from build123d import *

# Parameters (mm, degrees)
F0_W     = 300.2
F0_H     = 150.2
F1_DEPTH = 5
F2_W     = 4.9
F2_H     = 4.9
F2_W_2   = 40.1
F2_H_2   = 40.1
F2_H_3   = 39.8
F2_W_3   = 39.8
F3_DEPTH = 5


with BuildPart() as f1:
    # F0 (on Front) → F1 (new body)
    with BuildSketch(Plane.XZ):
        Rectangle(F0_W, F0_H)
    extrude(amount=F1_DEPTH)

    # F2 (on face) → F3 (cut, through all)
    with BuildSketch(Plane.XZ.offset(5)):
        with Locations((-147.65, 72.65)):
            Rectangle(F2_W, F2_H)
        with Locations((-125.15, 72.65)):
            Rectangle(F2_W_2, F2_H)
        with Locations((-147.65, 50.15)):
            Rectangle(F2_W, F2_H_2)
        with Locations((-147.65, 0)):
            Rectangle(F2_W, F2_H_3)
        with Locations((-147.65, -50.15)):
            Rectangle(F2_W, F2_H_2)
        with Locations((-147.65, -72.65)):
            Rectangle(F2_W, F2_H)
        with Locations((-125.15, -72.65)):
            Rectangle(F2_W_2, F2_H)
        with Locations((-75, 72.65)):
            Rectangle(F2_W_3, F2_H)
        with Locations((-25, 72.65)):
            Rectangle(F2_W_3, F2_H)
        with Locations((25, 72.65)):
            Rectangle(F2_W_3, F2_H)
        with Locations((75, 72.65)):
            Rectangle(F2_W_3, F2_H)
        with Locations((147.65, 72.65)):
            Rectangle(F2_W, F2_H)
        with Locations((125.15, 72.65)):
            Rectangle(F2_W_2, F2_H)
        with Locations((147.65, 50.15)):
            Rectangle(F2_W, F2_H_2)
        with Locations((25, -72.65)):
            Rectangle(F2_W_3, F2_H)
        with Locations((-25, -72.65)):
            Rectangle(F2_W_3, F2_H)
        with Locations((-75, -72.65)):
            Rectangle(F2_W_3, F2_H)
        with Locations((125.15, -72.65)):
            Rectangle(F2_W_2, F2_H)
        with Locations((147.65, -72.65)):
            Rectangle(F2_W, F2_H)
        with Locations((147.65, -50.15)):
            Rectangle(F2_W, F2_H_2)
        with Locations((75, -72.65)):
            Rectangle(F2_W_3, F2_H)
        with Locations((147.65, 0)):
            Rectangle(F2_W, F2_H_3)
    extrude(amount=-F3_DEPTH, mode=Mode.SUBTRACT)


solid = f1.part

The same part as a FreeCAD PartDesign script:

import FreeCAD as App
import Part
import Sketcher

V = App.Vector


def add_polygon(sketch, points):
    """Adds a closed chain of lines whose ends are joined by coincident constraints."""
    first, n = sketch.GeometryCount, len(points)
    for a, b in zip(points, points[1:] + points[:1]):
        sketch.addGeometry(Part.LineSegment(App.Vector(*a, 0), App.Vector(*b, 0)), False)
    for i in range(n):
        sketch.addConstraint(Sketcher.Constraint("Coincident", first + i, 2, first + (i + 1) % n, 1))

doc = App.newDocument("Part")
body = doc.addObject("PartDesign::Body", "Body")

# Sketch on XZ plane
sketch1 = body.newObject("Sketcher::SketchObject", "Sketch")
sketch1.AttachmentSupport = (doc.getObject("XZ_Plane"), [""])
sketch1.MapMode = "FlatFace"
add_polygon(sketch1, [(-150.1, 75.1), (-150.1, -75.1), (150.1, -75.1), (150.1, 75.1)])  # lines 0-3
sketch1.addConstraint([
    Sketcher.Constraint("Vertical", 0),
    Sketcher.Constraint("Horizontal", 1),
    Sketcher.Constraint("Vertical", 2),
    Sketcher.Constraint("Horizontal", 3),
    Sketcher.Constraint("Symmetric", 0, 2, 2, 2, -1, 1),
    Sketcher.Constraint("DistanceX", 1, 1, 1, 2, 300.2),
    Sketcher.Constraint("DistanceY", 0, 2, 0, 1, 150.2),
])
pad1 = body.newObject("PartDesign::Pad", "Pad")
pad1.Profile = sketch1
pad1.Length = 5

# Sketch on XZ plane
sketch2 = body.newObject("Sketcher::SketchObject", "Sketch001")
sketch2.AttachmentSupport = (doc.getObject("XZ_Plane"), [""])
sketch2.MapMode = "FlatFace"
sketch2.AttachmentOffset = App.Placement(V(0, 0, 5), App.Rotation())
add_polygon(sketch2, [(-150.1, 75.1), (-150.1, 30.1), (-145.2, 30.1), (-145.2, 70.2), (-105.1, 70.2), (-105.1, 75.1)])  # lines 0-5
add_polygon(sketch2, [(-150.1, 19.9), (-150.1, -19.9), (-145.2, -19.9), (-145.2, 19.9)])  # lines 6-9
add_polygon(sketch2, [(-150.1, -30.1), (-150.1, -75.1), (-105.1, -75.1), (-105.1, -70.2), (-145.2, -70.2), (-145.2, -30.1)])  # lines 10-15
add_polygon(sketch2, [(-94.9, 75.1), (-94.9, 70.2), (-55.1, 70.2), (-55.1, 75.1)])  # lines 16-19
add_polygon(sketch2, [(-44.9, 75.1), (-44.9, 70.2), (-5.1, 70.2), (-5.1, 75.1)])  # lines 20-23
add_polygon(sketch2, [(5.1, 75.1), (5.1, 70.2), (44.9, 70.2), (44.9, 75.1)])  # lines 24-27
add_polygon(sketch2, [(55.1, 75.1), (55.1, 70.2), (94.9, 70.2), (94.9, 75.1)])  # lines 28-31
add_polygon(sketch2, [(150.1, 75.1), (105.1, 75.1), (105.1, 70.2), (145.2, 70.2), (145.2, 30.1), (150.1, 30.1)])  # lines 32-37
add_polygon(sketch2, [(5.1, -70.2), (5.1, -75.1), (44.9, -75.1), (44.9, -70.2)])  # lines 38-41
add_polygon(sketch2, [(-44.9, -70.2), (-44.9, -75.1), (-5.1, -75.1), (-5.1, -70.2)])  # lines 42-45
add_polygon(sketch2, [(-94.9, -70.2), (-94.9, -75.1), (-55.1, -75.1), (-55.1, -70.2)])  # lines 46-49
add_polygon(sketch2, [(105.1, -70.2), (105.1, -75.1), (150.1, -75.1), (150.1, -30.1), (145.2, -30.1), (145.2, -70.2)])  # lines 50-55
add_polygon(sketch2, [(55.1, -70.2), (55.1, -75.1), (94.9, -75.1), (94.9, -70.2)])  # lines 56-59
add_polygon(sketch2, [(145.2, 19.9), (145.2, -19.9), (150.1, -19.9), (150.1, 19.9)])  # lines 60-63
sketch2.addConstraint([
    Sketcher.Constraint("Vertical", 0),
    Sketcher.Constraint("Horizontal", 1),
    Sketcher.Constraint("Vertical", 2),
    Sketcher.Constraint("Horizontal", 3),
    Sketcher.Constraint("Vertical", 4),
    Sketcher.Constraint("Horizontal", 5),
    Sketcher.Constraint("Vertical", 6),
    Sketcher.Constraint("Horizontal", 7),
    Sketcher.Constraint("Vertical", 8),
    Sketcher.Constraint("Horizontal", 9),
    Sketcher.Constraint("Vertical", 10),
    Sketcher.Constraint("Horizontal", 11),
    Sketcher.Constraint("Vertical", 12),
    Sketcher.Constraint("Horizontal", 13),
    Sketcher.Constraint("Vertical", 14),
    Sketcher.Constraint("Horizontal", 15),
    Sketcher.Constraint("Vertical", 16),
    Sketcher.Constraint("Horizontal", 17),
    Sketcher.Constraint("Vertical", 18),
    Sketcher.Constraint("Horizontal", 19),
    Sketcher.Constraint("Vertical", 20),
    Sketcher.Constraint("Horizontal", 21),
    Sketcher.Constraint("Vertical", 22),
    Sketcher.Constraint("Horizontal", 23),
    Sketcher.Constraint("Vertical", 24),
    Sketcher.Constraint("Horizontal", 25),
    Sketcher.Constraint("Vertical", 26),
    Sketcher.Constraint("Horizontal", 27),
    Sketcher.Constraint("Vertical", 28),
    Sketcher.Constraint("Horizontal", 29),
    Sketcher.Constraint("Vertical", 30),
    Sketcher.Constraint("Horizontal", 31),
    Sketcher.Constraint("Horizontal", 32),
    Sketcher.Constraint("Vertical", 33),
    Sketcher.Constraint("Horizontal", 34),
    Sketcher.Constraint("Vertical", 35),
    Sketcher.Constraint("Horizontal", 36),
    Sketcher.Constraint("Vertical", 37),
    Sketcher.Constraint("Vertical", 38),
    Sketcher.Constraint("Horizontal", 39),
    Sketcher.Constraint("Vertical", 40),
    Sketcher.Constraint("Horizontal", 41),
    Sketcher.Constraint("Vertical", 42),
    Sketcher.Constraint("Horizontal", 43),
    Sketcher.Constraint("Vertical", 44),
    Sketcher.Constraint("Horizontal", 45),
    Sketcher.Constraint("Vertical", 46),
    Sketcher.Constraint("Horizontal", 47),
    Sketcher.Constraint("Vertical", 48),
    Sketcher.Constraint("Horizontal", 49),
    Sketcher.Constraint("Vertical", 50),
    Sketcher.Constraint("Horizontal", 51),
    Sketcher.Constraint("Vertical", 52),
    Sketcher.Constraint("Horizontal", 53),
    Sketcher.Constraint("Vertical", 54),
    Sketcher.Constraint("Horizontal", 55),
    Sketcher.Constraint("Vertical", 56),
    Sketcher.Constraint("Horizontal", 57),
    Sketcher.Constraint("Vertical", 58),
    Sketcher.Constraint("Horizontal", 59),
    Sketcher.Constraint("Vertical", 60),
    Sketcher.Constraint("Horizontal", 61),
    Sketcher.Constraint("Vertical", 62),
    Sketcher.Constraint("Horizontal", 63),
    Sketcher.Constraint("Symmetric", 11, 2, 32, 2, -1, 1),
    Sketcher.Constraint("Symmetric", 13, 2, 34, 2, -1, 1),
    Sketcher.Constraint("Symmetric", 15, 2, 36, 2, -1, 1),
    Sketcher.Constraint("Symmetric", 22, 2, 38, 2, -1, 1),
    Sketcher.Constraint("Symmetric", 20, 2, 40, 2, -1, 1),
    Sketcher.Constraint("Symmetric", 26, 2, 42, 2, -1, 1),
    Sketcher.Constraint("Symmetric", 24, 2, 44, 2, -1, 1),
    Sketcher.Constraint("Symmetric", 30, 2, 46, 2, -1, 1),
    Sketcher.Constraint("Symmetric", 28, 2, 48, 2, -1, 1),
    Sketcher.Constraint("Symmetric", 4, 2, 50, 2, -1, 1),
    Sketcher.Constraint("Symmetric", 0, 2, 52, 2, -1, 1),
    Sketcher.Constraint("Symmetric", 2, 2, 54, 2, -1, 1),
    Sketcher.Constraint("Symmetric", 18, 2, 56, 2, -1, 1),
    Sketcher.Constraint("Symmetric", 16, 2, 58, 2, -1, 1),
    Sketcher.Constraint("Symmetric", 8, 2, 60, 2, -1, 1),
    Sketcher.Constraint("Symmetric", 6, 2, 62, 2, -1, 1),
    Sketcher.Constraint("Symmetric", 21, 2, 24, 2, -2),
    Sketcher.Constraint("Symmetric", 23, 2, 26, 2, -2),
    Sketcher.Constraint("Symmetric", 17, 2, 28, 2, -2),
    Sketcher.Constraint("Symmetric", 19, 2, 30, 2, -2),
    Sketcher.Constraint("Symmetric", 4, 2, 32, 2, -2),
    Sketcher.Constraint("Symmetric", 2, 2, 34, 2, -2),
    Sketcher.Constraint("Symmetric", 0, 2, 36, 2, -2),
    Sketcher.Constraint("Horizontal", 3, 2, 16, 2),
    Sketcher.Constraint("Horizontal", 5, 2, 18, 2),
    Sketcher.Constraint("Horizontal", 17, 2, 20, 2),
    Sketcher.Constraint("Horizontal", 19, 2, 22, 2),
    Sketcher.Constraint("Horizontal", 7, 2, 60, 2),
    Sketcher.Constraint("Vertical", 5, 2, 6, 2),
    Sketcher.Constraint("Vertical", 2, 2, 7, 2),
    Sketcher.Constraint("Equal", 19, 21),
    Sketcher.Constraint("Equal", 51, 0),
    Sketcher.Constraint("Equal", 55, 2),
    Sketcher.Constraint("Equal", 59, 6),
    Sketcher.Constraint("DistanceX", 5, 2, 5, 1, 45.0),
    Sketcher.Constraint("DistanceX", 1, 1, 1, 2, 4.9),
    Sketcher.Constraint("DistanceX", 17, 1, 17, 2, 39.8),
    Sketcher.Constraint("DistanceX", 0, 2, -1, 1, 150.1),
    Sketcher.Constraint("DistanceY", -1, 1, 0, 2, 30.1),
    Sketcher.Constraint("DistanceX", 16, 2, -1, 1, 94.9),
    Sketcher.Constraint("DistanceX", 20, 2, -1, 1, 44.9),
])
pocket1 = body.newObject("PartDesign::Pocket", "Pocket")
pocket1.Profile = sketch2
pocket1.Type = "ThroughAll"

doc.recompute()
